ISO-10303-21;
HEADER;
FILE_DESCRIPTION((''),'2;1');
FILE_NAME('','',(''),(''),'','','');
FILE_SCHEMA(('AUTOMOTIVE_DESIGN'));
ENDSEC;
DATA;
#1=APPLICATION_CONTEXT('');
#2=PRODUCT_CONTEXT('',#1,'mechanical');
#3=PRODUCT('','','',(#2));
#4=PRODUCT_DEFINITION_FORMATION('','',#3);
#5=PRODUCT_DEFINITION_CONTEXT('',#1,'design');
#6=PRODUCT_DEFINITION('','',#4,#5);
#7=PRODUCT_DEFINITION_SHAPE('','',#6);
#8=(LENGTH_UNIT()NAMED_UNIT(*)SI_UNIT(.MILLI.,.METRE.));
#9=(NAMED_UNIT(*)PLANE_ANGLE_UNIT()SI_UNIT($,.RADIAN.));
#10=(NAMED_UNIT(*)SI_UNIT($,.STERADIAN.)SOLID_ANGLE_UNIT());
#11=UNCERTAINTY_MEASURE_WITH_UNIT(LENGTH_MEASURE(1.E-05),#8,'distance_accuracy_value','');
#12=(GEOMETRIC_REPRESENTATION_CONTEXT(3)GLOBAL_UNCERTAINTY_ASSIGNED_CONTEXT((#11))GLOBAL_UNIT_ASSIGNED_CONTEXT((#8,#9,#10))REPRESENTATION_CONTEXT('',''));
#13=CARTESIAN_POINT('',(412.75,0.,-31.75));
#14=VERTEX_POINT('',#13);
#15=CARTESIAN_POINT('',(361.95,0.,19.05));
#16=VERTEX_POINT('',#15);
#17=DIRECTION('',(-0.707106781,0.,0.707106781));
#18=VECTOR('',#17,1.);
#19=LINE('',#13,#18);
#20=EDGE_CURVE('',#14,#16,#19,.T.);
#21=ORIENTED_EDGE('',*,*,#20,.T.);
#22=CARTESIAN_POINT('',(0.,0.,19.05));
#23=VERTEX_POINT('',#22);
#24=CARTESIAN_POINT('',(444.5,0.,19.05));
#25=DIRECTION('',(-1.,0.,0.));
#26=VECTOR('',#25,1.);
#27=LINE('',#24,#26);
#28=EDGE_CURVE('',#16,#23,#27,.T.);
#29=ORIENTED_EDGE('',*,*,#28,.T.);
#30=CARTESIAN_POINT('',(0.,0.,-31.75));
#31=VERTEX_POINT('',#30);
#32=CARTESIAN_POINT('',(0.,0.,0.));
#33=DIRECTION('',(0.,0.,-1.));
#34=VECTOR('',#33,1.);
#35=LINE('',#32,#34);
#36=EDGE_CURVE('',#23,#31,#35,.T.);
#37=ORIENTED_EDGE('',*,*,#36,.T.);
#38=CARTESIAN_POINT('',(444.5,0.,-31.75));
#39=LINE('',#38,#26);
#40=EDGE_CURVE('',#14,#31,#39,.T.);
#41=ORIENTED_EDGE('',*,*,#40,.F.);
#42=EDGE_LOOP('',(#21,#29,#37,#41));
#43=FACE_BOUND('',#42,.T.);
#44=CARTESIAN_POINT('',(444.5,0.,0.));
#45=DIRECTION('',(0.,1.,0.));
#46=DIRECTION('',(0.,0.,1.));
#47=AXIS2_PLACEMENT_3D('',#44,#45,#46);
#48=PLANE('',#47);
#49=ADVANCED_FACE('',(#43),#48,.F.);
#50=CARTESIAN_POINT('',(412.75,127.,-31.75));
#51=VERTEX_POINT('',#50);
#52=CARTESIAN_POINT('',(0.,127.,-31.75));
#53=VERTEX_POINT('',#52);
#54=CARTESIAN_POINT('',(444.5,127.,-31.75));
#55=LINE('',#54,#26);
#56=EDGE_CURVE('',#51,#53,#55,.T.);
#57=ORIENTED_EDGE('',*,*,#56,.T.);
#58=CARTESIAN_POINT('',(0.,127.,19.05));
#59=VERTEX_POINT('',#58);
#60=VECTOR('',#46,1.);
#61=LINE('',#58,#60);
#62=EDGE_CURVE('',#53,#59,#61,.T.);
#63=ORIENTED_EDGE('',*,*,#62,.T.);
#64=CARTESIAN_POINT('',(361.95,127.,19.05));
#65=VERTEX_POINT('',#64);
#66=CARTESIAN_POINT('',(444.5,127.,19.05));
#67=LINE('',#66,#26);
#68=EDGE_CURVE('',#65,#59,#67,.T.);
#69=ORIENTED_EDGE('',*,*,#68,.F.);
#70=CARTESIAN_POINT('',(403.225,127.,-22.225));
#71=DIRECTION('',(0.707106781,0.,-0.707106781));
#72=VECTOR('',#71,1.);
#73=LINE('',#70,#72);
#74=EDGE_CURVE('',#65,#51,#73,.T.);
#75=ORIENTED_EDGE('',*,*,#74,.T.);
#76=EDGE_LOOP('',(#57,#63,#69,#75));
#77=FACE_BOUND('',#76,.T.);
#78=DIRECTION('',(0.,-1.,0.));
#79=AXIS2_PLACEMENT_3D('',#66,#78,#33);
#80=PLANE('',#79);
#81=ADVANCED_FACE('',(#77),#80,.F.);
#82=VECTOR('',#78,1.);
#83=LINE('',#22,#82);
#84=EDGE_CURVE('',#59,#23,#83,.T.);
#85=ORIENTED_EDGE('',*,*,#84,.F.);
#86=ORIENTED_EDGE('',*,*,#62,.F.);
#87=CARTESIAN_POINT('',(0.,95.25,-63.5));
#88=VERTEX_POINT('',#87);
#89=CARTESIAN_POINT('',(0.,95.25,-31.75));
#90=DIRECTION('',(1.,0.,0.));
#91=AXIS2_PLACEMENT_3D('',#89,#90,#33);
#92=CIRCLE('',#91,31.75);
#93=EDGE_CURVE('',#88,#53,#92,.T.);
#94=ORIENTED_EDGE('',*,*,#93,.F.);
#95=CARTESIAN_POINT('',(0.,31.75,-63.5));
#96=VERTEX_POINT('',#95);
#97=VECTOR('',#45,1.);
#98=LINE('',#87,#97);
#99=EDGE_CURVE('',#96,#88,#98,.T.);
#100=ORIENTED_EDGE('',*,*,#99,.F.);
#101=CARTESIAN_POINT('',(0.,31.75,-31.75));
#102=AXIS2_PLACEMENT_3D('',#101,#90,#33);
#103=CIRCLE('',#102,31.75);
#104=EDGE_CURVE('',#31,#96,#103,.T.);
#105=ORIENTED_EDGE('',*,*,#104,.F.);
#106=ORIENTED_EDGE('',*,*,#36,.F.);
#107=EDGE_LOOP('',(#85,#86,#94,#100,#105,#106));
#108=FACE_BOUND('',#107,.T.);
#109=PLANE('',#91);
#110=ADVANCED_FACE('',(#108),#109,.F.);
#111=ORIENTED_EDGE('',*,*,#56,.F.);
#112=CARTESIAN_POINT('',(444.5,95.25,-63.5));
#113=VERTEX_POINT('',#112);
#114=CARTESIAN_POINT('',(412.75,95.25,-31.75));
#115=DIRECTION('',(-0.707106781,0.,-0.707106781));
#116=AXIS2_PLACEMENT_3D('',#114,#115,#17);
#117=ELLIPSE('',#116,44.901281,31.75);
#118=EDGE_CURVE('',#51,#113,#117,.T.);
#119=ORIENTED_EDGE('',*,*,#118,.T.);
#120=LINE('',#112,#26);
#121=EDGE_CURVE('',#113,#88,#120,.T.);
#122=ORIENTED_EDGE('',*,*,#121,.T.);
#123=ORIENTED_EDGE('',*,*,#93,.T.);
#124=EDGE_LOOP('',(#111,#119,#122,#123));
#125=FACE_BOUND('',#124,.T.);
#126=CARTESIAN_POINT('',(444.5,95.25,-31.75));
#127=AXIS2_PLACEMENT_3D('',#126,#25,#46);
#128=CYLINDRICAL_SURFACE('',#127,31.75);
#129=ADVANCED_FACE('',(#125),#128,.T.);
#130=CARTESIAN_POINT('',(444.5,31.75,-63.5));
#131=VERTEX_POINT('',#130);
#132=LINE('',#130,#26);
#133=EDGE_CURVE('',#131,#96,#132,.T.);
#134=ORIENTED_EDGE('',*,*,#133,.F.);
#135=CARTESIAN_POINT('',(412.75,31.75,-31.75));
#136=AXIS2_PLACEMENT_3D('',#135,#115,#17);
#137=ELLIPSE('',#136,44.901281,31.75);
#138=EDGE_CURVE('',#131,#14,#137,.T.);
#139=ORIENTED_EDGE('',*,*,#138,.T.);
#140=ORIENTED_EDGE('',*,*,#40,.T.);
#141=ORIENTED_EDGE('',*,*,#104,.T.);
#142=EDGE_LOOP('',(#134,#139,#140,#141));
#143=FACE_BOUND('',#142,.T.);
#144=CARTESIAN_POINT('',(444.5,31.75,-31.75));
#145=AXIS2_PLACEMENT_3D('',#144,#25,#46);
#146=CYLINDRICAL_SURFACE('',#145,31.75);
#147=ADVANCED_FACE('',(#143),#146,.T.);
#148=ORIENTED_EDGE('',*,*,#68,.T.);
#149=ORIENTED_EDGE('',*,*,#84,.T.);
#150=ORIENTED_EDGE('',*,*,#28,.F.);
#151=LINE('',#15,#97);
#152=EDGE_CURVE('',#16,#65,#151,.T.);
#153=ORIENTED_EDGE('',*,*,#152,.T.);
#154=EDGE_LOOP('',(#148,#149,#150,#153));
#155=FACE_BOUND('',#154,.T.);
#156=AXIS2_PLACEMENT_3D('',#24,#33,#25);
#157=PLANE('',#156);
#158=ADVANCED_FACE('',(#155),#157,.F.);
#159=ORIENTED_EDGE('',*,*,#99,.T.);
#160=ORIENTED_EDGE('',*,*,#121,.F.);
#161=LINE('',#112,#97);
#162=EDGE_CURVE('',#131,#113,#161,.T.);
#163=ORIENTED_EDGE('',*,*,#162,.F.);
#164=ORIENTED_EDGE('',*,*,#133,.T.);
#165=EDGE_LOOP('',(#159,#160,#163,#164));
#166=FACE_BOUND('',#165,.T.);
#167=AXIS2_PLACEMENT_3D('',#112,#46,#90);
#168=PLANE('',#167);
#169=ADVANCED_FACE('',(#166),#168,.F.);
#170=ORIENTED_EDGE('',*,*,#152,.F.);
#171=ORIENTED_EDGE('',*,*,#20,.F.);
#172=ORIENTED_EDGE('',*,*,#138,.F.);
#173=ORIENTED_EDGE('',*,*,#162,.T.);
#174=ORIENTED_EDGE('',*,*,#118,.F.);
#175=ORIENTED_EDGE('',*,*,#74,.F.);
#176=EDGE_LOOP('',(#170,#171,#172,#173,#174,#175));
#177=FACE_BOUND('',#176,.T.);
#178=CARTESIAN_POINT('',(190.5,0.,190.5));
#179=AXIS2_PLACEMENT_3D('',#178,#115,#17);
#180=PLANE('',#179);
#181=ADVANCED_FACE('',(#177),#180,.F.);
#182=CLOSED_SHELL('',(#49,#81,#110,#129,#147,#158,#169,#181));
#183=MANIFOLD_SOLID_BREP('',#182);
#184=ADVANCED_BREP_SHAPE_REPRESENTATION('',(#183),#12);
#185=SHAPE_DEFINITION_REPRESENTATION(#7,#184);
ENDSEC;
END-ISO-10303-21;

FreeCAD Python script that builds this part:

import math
import FreeCAD as App
import Part
import Sketcher
from FreeCAD import Vector
Q = App.Units.Quantity

doc = App.newDocument("Part")
body = doc.addObject("PartDesign::Body", "Body")

# Sketch on YZ plane
sketch1 = body.newObject("Sketcher::SketchObject", "Sketch")
sketch1.AttachmentSupport = (doc.getObject("YZ_Plane"), [""])
sketch1.MapMode = "FlatFace"
sketch1.addGeometry([
    Part.ArcOfCircle(Part.Circle(Vector(31.75, -31.75, 0), Vector(0, 0, 1), 31.75), math.radians(180), math.radians(270)),  # 0
    Part.LineSegment(Vector(31.75, -63.5, 0), Vector(95.25, -63.5, 0)),  # 1
    Part.ArcOfCircle(Part.Circle(Vector(95.25, -31.75, 0), Vector(0, 0, 1), 31.75), math.radians(-90), math.radians(0)),  # 2
    Part.LineSegment(Vector(127, -31.75, 0), Vector(127, 19.05, 0)),  # 3
    Part.LineSegment(Vector(127, 19.05, 0), Vector(0, 19.05, 0)),  # 4
    Part.LineSegment(Vector(0, 19.05, 0), Vector(0, -31.75, 0)),  # 5
], False)
sketch1.addConstraint([
    Sketcher.Constraint("Tangent", 0, 2, 1, 1),
    Sketcher.Constraint("Tangent", 1, 2, 2, 1),
    Sketcher.Constraint("Tangent", 2, 2, 3, 1),
    Sketcher.Constraint("Coincident", 3, 2, 4, 1),
    Sketcher.Constraint("Coincident", 4, 2, 5, 1),
    Sketcher.Constraint("Tangent", 5, 2, 0, 1),
    Sketcher.Constraint("Horizontal", 1),
    Sketcher.Constraint("Vertical", 3),
    Sketcher.Constraint("Horizontal", 4),
    Sketcher.Constraint("Vertical", 5),
    Sketcher.Constraint("Equal", 0, 2),
    Sketcher.Constraint("PointOnObject", 4, 2, -2),
    Sketcher.Constraint("DistanceX", 4, 2, 4, 1, Q("5 in")),
    Sketcher.Constraint("DistanceY", 3, 1, 3, 2, Q("2 in")),
    Sketcher.Constraint("Radius", 0, Q("1.25 in")),
    Sketcher.Constraint("DistanceY", 0, 2, -1, 1, Q("2.5 in")),
])
pad1 = body.newObject("PartDesign::Pad", "Pad")
pad1.Profile = sketch1
pad1.Length = Q("17.5 in")

# Sketch on an angled plane
sketch2 = body.newObject("Sketcher::SketchObject", "Sketch001")
sketch2.Placement = App.Placement(Vector(190.5, 0, 190.5), App.Rotation(Vector(0, 1, 0), Vector(-0.707106781, 0, 0.707106781), Vector(0.707106781, 0, 0.707106781), "ZXY"))
sketch2.addGeometry([
    Part.LineSegment(Vector(-139.206091, 31.018526, 0), Vector(-139.206091, -749.439015, 0)),
    Part.LineSegment(Vector(-139.206091, -749.439015, 0), Vector(205.196411, -749.439015, 0)),
    Part.LineSegment(Vector(205.196411, -749.439015, 0), Vector(205.196411, 31.018526, 0)),
    Part.LineSegment(Vector(205.196411, 31.018526, 0), Vector(-139.206091, 31.018526, 0)),
], False)
sketch2.addConstraint([
    Sketcher.Constraint("Coincident", 0, 2, 1, 1),
    Sketcher.Constraint("Coincident", 1, 2, 2, 1),
    Sketcher.Constraint("Coincident", 2, 2, 3, 1),
    Sketcher.Constraint("Coincident", 3, 2, 0, 1),
    Sketcher.Constraint("Vertical", 0),
    Sketcher.Constraint("Horizontal", 1),
    Sketcher.Constraint("Vertical", 2),
    Sketcher.Constraint("Horizontal", 3),
    Sketcher.Constraint("DistanceX", 1, 1, 1, 2, Q("344.402502 mm")),
    Sketcher.Constraint("DistanceY", 0, 2, 0, 1, Q("780.457541 mm")),
    Sketcher.Constraint("DistanceX", 0, 2, -1, 1, Q("139.206091 mm")),
    Sketcher.Constraint("DistanceY", 0, 2, -1, 1, Q("749.439015 mm")),
])
pocket1 = body.newObject("PartDesign::Pocket", "Pocket")
pocket1.Profile = sketch2
pocket1.Type = "ThroughAll"
pocket1.Reversed = True

doc.recompute()
